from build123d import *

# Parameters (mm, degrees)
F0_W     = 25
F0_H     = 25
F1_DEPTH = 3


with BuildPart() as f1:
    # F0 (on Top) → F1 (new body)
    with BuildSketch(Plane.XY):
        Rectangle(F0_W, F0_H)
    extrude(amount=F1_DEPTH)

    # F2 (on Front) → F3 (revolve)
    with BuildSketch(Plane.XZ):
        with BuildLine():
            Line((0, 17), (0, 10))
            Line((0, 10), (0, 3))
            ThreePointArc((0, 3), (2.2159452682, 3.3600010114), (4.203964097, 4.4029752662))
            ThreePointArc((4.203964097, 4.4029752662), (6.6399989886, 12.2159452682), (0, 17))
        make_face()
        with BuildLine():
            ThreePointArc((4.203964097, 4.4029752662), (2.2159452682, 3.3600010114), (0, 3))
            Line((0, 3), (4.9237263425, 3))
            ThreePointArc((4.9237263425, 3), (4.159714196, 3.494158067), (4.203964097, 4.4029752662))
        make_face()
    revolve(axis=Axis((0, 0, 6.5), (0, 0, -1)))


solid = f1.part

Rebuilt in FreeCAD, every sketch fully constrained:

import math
import FreeCAD as App
import Part
import Sketcher


def add_polygon(sketch, points):
    """Adds a closed chain of lines whose ends are joined by coincident constraints."""
    first, n = sketch.GeometryCount, len(points)
    for a, b in zip(points, points[1:] + points[:1]):
        sketch.addGeometry(Part.LineSegment(App.Vector(*a, 0), App.Vector(*b, 0)), False)
    for i in range(n):
        sketch.addConstraint(Sketcher.Constraint("Coincident", first + i, 2, first + (i + 1) % n, 1))

doc = App.newDocument("Part")
params = doc.addObject("Spreadsheet::Sheet", "Params")
for row, (alias, value) in enumerate([
    ("sketch1_width", "25 mm"),
    ("pad1_length", "3 mm"),
    ("sketch2_radius", "7 mm"),
    ("sketch2_height", "14 mm"),
    ("revolution_angle", "360 deg"),
], start=1):
    params.set(f"A{row}", alias)
    params.set(f"B{row}", "=" + value)
    params.setAlias(f"B{row}", alias)

body = doc.addObject("PartDesign::Body", "Body")

# Sketch on XY plane
sketch1 = body.newObject("Sketcher::SketchObject", "Sketch")
sketch1.AttachmentSupport = (doc.getObject("XY_Plane"), [""])
sketch1.MapMode = "FlatFace"
add_polygon(sketch1, [(-12.5, 12.5), (-12.5, -12.5), (12.5, -12.5), (12.5, 12.5)])  # lines 0-3
sketch1.addConstraint([
    Sketcher.Constraint("Vertical", 0),
    Sketcher.Constraint("Horizontal", 1),
    Sketcher.Constraint("Vertical", 2),
    Sketcher.Constraint("Horizontal", 3),
    Sketcher.Constraint("Symmetric", 0, 2, 2, 2, -1, 1),
    Sketcher.Constraint("Equal", 3, 0),
    Sketcher.Constraint("DistanceX", 1, 1, 1, 2, 25.0),
])
sketch1.setExpression("Constraints[10]", "Params.sketch1_width")
pad1 = body.newObject("PartDesign::Pad", "Pad")
pad1.Profile = sketch1
pad1.setExpression("Length", "Params.pad1_length")

# Sketch on XZ plane
sketch2 = body.newObject("Sketcher::SketchObject", "Sketch001")
sketch2.AttachmentSupport = (doc.getObject("XZ_Plane"), [""])
sketch2.MapMode = "FlatFace"
sketch2.addGeometry([
    Part.LineSegment(App.Vector(0, 17, 0), App.Vector(0, 3, 0)),
    Part.LineSegment(App.Vector(0, 3, 0), App.Vector(4.923726, 3, 0)),
    Part.ArcOfCircle(Part.Circle(App.Vector(4.970598, 3.910162, 0), App.Vector(0, 0, 1), 0.911368), math.radians(147.266006), math.radians(267.051965)),
    Part.ArcOfCircle(Part.Circle(App.Vector(0, 10, 0), App.Vector(0, 0, 1), 7), math.radians(-53.089533), math.radians(90)),
], False)
sketch2.addConstraint([
    Sketcher.Constraint("Coincident", 0, 2, 1, 1),
    Sketcher.Constraint("Coincident", 1, 2, 2, 2),
    Sketcher.Constraint("Coincident", 2, 1, 3, 1),
    Sketcher.Constraint("Coincident", 3, 2, 0, 1),
    Sketcher.Constraint("Vertical", 0),
    Sketcher.Constraint("Horizontal", 1),
    Sketcher.Constraint("PointOnObject", 3, 3, -2),
    Sketcher.Constraint("PointOnObject", 0, 2, -2),
    Sketcher.Constraint("Radius", 3, 7.0),
    Sketcher.Constraint("DistanceY", 0, 2, 0, 1, 14.0),
    Sketcher.Constraint("DistanceY", -1, 1, 3, 3, 10.0),
    Sketcher.Constraint("Radius", 2, 0.911368),
    Sketcher.Constraint("DistanceX", -1, 1, 2, 3, 4.970598),
    Sketcher.Constraint("DistanceX", 1, 1, 1, 2, 4.923726),
])
sketch2.setExpression("Constraints[8]", "Params.sketch2_radius")
sketch2.setExpression("Constraints[9]", "Params.sketch2_height")
revolution = body.newObject("PartDesign::Revolution", "Revolution")
revolution.Profile = sketch2
revolution.ReferenceAxis = (sketch2, ["V_Axis"])
revolution.setExpression("Angle", "Params.revolution_angle")

doc.recompute()
